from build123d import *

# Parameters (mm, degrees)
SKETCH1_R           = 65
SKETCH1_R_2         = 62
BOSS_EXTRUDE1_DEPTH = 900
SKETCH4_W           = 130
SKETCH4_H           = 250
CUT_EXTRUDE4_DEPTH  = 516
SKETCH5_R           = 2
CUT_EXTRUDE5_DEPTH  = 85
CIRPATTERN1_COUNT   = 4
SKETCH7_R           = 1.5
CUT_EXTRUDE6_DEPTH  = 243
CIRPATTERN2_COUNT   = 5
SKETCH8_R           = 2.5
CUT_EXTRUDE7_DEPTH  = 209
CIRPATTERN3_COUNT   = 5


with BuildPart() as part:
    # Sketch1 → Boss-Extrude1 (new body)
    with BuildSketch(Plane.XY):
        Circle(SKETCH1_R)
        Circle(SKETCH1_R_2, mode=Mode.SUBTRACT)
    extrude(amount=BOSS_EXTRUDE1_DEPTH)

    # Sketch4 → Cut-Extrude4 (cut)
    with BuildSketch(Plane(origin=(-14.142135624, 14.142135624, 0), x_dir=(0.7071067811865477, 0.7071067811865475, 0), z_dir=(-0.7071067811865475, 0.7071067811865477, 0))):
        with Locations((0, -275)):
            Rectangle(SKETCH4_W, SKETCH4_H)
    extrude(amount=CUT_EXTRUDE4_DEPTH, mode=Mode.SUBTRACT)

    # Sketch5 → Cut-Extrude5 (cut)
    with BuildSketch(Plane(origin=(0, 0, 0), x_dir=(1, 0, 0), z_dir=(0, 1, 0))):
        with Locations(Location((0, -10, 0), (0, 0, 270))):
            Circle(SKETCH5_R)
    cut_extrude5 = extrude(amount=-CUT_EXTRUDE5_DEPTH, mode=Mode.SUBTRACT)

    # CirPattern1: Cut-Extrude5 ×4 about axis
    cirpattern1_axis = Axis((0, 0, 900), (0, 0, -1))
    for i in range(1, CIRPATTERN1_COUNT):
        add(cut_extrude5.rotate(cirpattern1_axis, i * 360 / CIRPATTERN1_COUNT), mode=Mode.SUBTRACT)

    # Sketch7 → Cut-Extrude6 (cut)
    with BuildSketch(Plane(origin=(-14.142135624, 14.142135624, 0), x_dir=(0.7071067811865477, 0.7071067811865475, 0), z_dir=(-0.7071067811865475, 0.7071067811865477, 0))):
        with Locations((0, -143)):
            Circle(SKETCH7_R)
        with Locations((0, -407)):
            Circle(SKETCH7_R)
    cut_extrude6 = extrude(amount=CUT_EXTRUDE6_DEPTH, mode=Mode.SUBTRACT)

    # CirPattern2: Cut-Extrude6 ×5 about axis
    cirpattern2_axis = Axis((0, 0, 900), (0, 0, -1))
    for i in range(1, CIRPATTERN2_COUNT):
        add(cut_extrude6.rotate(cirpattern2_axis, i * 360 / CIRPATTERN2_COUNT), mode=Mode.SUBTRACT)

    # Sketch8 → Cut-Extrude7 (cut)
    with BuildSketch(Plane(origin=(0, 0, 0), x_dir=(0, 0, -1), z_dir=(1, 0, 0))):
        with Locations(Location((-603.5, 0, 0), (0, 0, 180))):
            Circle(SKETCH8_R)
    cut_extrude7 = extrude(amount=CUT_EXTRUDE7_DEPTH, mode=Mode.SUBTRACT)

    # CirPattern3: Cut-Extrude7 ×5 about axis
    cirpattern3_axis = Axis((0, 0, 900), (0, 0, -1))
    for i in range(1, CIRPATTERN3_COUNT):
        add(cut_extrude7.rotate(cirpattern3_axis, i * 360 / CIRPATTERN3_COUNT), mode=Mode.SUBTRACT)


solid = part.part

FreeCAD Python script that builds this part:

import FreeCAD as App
import Part
import Sketcher
Q = App.Units.Quantity

doc = App.newDocument("Part")
body = doc.addObject("PartDesign::Body", "Body")

# Sketch on XY plane
sketch1 = body.newObject("Sketcher::SketchObject", "Sketch")
sketch1.AttachmentSupport = (doc.getObject("XY_Plane"), [""])
sketch1.MapMode = "FlatFace"
sketch1.addGeometry([
    Part.Circle(App.Vector(0, 0, 0), App.Vector(0, 0, 1), 65),
    Part.Circle(App.Vector(0, 0, 0), App.Vector(0, 0, 1), 62),
], False)
sketch1.addConstraint([
    Sketcher.Constraint("Coincident", 0, 3, -1, 1),
    Sketcher.Constraint("Coincident", 1, 3, -1, 1),
    Sketcher.Constraint("Diameter", 0, Q("130 mm")),
    Sketcher.Constraint("Diameter", 1, Q("124 mm")),
])
pad1 = body.newObject("PartDesign::Pad", "Pad")
pad1.Profile = sketch1
pad1.Length = 900

# Sketch on an angled plane
sketch2 = body.newObject("Sketcher::SketchObject", "Sketch001")
sketch2.Placement = App.Placement(App.Vector(-14.142136, 14.142136, 0), App.Rotation(App.Vector(0.707106781, 0.707106781, 0), App.Vector(0, 0, -0.999999999), App.Vector(-0.707106781, 0.707106781, 0), "ZXY"))
sketch2.addGeometry([
    Part.LineSegment(App.Vector(-65, -150, 0), App.Vector(-65, -400, 0)),
    Part.LineSegment(App.Vector(-65, -400, 0), App.Vector(65, -400, 0)),
    Part.LineSegment(App.Vector(65, -400, 0), App.Vector(65, -150, 0)),
    Part.LineSegment(App.Vector(65, -150, 0), App.Vector(-65, -150, 0)),
], False)
sketch2.addConstraint([
    Sketcher.Constraint("Coincident", 0, 2, 1, 1),
    Sketcher.Constraint("Coincident", 1, 2, 2, 1),
    Sketcher.Constraint("Coincident", 2, 2, 3, 1),
    Sketcher.Constraint("Coincident", 3, 2, 0, 1),
    Sketcher.Constraint("Vertical", 0),
    Sketcher.Constraint("Horizontal", 1),
    Sketcher.Constraint("Vertical", 2),
    Sketcher.Constraint("Horizontal", 3),
    Sketcher.Constraint("DistanceX", 1, 1, 1, 2, Q("130 mm")),
    Sketcher.Constraint("DistanceY", 0, 2, 0, 1, Q("250 mm")),
    Sketcher.Constraint("DistanceX", 0, 2, -1, 1, Q("65 mm")),
    Sketcher.Constraint("DistanceY", 0, 2, -1, 1, Q("400 mm")),
])
pocket1 = body.newObject("PartDesign::Pocket", "Pocket")
pocket1.Profile = sketch2
pocket1.Length = 516
pocket1.Reversed = True

# Sketch on XZ plane
sketch3 = body.newObject("Sketcher::SketchObject", "Sketch002")
sketch3.AttachmentSupport = (doc.getObject("XZ_Plane"), [""])
sketch3.MapMode = "FlatFace"
sketch3.addGeometry(Part.Circle(App.Vector(0, 10, 0), App.Vector(0, 0, 1), 2), False)
sketch3.addConstraint([
    Sketcher.Constraint("PointOnObject", 0, 3, -2),
    Sketcher.Constraint("Diameter", 0, Q("4 mm")),
    Sketcher.Constraint("DistanceY", -1, 1, 0, 3, Q("10 mm")),
])
pocket2 = body.newObject("PartDesign::Pocket", "Pocket001")
pocket2.Profile = sketch3
pocket2.Length = 85
pocket2.Reversed = True
doc.recompute()

polarpattern = body.newObject("PartDesign::PolarPattern", "PolarPattern")
polarpattern.Originals = [pocket2]
polarpattern.Axis = (doc.getObject("Z_Axis"), [""])
polarpattern.Angle = 360
polarpattern.Occurrences = 4
body.Tip = polarpattern

# Sketch on an angled plane
sketch4 = body.newObject("Sketcher::SketchObject", "Sketch003")
sketch4.Placement = App.Placement(App.Vector(-14.142136, 14.142136, 0), App.Rotation(App.Vector(0.707106781, 0.707106781, 0), App.Vector(0, 0, -0.999999999), App.Vector(-0.707106781, 0.707106781, 0), "ZXY"))
sketch4.addGeometry([
    Part.Circle(App.Vector(0, -143, 0), App.Vector(0, 0, 1), 1.5),
    Part.Circle(App.Vector(0, -407, 0), App.Vector(0, 0, 1), 1.5),
], False)
sketch4.addConstraint([
    Sketcher.Constraint("Equal", 0, 1),
    Sketcher.Constraint("PointOnObject", 0, 3, -2),
    Sketcher.Constraint("PointOnObject", 1, 3, -2),
    Sketcher.Constraint("Diameter", 0, Q("3 mm")),
    Sketcher.Constraint("DistanceY", 0, 3, -1, 1, Q("143 mm")),
    Sketcher.Constraint("DistanceY", 1, 3, -1, 1, Q("407 mm")),
])
pocket3 = body.newObject("PartDesign::Pocket", "Pocket002")
pocket3.Profile = sketch4
pocket3.Length = 243
pocket3.Reversed = True
doc.recompute()

polarpattern2 = body.newObject("PartDesign::PolarPattern", "PolarPattern001")
polarpattern2.Originals = [pocket3]
polarpattern2.Axis = (doc.getObject("Z_Axis"), [""])
polarpattern2.Angle = 360
polarpattern2.Occurrences = 5
body.Tip = polarpattern2

# Sketch on YZ plane
sketch5 = body.newObject("Sketcher::SketchObject", "Sketch004")
sketch5.AttachmentSupport = (doc.getObject("YZ_Plane"), [""])
sketch5.MapMode = "FlatFace"
sketch5.addGeometry(Part.Circle(App.Vector(0, 603.5, 0), App.Vector(0, 0, 1), 2.5), False)
sketch5.addConstraint([
    Sketcher.Constraint("PointOnObject", 0, 3, -2),
    Sketcher.Constraint("Diameter", 0, Q("5 mm")),
    Sketcher.Constraint("DistanceY", -1, 1, 0, 3, Q("603.5 mm")),
])
pocket4 = body.newObject("PartDesign::Pocket", "Pocket003")
pocket4.Profile = sketch5
pocket4.Length = 209
pocket4.Reversed = True
doc.recompute()

polarpattern3 = body.newObject("PartDesign::PolarPattern", "PolarPattern002")
polarpattern3.Originals = [pocket4]
polarpattern3.Axis = (doc.getObject("Z_Axis"), [""])
polarpattern3.Angle = 360
polarpattern3.Occurrences = 5
body.Tip = polarpattern3

doc.recompute()
